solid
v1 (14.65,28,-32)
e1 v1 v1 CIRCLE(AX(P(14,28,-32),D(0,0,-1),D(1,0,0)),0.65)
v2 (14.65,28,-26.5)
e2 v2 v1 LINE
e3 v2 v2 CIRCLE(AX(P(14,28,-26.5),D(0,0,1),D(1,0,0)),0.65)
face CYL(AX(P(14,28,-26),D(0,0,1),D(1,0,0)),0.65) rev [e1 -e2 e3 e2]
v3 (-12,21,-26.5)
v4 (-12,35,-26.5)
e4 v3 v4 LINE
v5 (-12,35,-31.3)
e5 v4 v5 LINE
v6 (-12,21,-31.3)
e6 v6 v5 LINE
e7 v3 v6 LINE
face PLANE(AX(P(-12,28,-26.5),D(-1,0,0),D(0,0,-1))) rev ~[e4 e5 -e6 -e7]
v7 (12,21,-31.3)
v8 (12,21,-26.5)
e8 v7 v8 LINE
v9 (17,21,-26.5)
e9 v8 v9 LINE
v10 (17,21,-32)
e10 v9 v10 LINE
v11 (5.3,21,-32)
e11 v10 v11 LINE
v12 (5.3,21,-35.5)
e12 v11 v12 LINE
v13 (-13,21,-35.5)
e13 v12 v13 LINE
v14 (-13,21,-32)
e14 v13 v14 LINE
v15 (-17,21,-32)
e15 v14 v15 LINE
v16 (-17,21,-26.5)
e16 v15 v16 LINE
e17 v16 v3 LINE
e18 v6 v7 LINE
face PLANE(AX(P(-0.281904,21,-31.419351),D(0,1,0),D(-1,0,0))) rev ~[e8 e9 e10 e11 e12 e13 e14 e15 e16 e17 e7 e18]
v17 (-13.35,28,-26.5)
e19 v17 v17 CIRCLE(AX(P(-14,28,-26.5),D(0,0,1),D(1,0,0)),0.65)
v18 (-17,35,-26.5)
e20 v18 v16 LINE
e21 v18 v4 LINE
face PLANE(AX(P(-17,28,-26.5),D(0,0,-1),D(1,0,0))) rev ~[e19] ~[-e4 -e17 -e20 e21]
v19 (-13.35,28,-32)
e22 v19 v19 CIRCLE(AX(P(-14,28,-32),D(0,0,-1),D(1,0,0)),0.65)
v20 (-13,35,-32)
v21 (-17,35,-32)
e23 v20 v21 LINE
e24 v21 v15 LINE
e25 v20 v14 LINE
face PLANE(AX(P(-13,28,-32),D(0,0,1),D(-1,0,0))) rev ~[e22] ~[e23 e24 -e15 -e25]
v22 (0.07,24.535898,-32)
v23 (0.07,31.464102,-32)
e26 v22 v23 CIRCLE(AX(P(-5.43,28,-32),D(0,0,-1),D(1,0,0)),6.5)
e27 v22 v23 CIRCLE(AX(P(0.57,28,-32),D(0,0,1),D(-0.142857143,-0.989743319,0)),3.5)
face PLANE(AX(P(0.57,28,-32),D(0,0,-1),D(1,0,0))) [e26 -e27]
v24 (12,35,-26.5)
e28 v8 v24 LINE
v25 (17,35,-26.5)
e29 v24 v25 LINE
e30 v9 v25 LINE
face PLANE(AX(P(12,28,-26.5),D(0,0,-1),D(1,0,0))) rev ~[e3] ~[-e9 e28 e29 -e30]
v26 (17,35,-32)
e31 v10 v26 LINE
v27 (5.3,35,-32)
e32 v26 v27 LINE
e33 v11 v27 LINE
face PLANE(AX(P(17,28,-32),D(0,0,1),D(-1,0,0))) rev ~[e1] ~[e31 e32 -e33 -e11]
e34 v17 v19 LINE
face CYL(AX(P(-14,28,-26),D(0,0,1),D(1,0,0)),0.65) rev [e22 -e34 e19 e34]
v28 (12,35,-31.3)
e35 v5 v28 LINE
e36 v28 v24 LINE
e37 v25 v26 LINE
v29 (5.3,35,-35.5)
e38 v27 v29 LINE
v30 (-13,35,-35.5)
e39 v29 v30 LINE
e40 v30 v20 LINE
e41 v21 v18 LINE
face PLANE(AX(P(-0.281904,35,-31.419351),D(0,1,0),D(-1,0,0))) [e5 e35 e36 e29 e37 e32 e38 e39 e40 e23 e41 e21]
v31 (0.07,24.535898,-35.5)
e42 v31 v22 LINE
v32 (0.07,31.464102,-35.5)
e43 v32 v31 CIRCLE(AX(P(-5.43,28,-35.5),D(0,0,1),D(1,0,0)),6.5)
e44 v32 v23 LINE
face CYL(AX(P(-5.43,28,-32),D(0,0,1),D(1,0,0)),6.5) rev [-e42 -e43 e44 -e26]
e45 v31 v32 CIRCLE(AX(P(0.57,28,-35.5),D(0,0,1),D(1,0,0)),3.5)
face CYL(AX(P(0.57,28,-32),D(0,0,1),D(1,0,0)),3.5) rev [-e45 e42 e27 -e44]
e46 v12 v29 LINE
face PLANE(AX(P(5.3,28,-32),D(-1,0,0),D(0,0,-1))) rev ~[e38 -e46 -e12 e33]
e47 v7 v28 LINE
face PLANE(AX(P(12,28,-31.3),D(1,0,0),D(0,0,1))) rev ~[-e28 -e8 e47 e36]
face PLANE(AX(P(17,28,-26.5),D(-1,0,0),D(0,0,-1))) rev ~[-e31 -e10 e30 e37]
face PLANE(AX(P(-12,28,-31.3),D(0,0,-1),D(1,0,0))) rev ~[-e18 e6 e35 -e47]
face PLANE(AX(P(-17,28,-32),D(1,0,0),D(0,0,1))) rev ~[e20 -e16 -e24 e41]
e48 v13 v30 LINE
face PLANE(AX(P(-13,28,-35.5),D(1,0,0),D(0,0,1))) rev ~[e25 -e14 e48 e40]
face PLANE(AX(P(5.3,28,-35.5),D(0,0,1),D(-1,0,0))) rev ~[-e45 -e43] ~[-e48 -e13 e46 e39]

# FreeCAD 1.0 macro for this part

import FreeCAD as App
import Part
import Sketcher

V = App.Vector

doc = App.newDocument("Part")
body = doc.addObject("PartDesign::Body", "Body")

sketch1 = doc.addObject("Sketcher::SketchObject", "Sketch")
body.addObject(sketch1)
sketch1.AttachmentSupport = (doc.XY_Plane, [""])
sketch1.MapMode = "FlatFace"
sketch1.addGeometry(Part.Circle(V(0, 0, 0), V(0, 0, 1), 3.5), False)
sketch1.addConstraint(Sketcher.Constraint("Coincident", 0, 3, -1, 1))
sketch1.addConstraint(Sketcher.Constraint("Diameter", 0, 7.0))
pad1 = doc.addObject("PartDesign::Pad", "Pad")
body.addObject(pad1)
pad1.Profile = sketch1
pad1.Length = 4
body2 = doc.addObject("PartDesign::Body", "Body001")
doc.recompute()

body.Placement = App.Placement(V(0, 0, 0), App.Rotation(V(1, 0, 0), 90))
boolean = doc.addObject("PartDesign::Boolean", "Boolean")
body2.addObject(boolean)
boolean.Type = "Fuse"
boolean.addObjects([body])
body3 = doc.addObject("PartDesign::Body", "Body002")
doc.recompute()

body2.Placement = App.Placement(V(0.57, -7, 0), App.Rotation(V(0, 0, 1), 0))
boolean2 = doc.addObject("PartDesign::Boolean", "Boolean001")
body3.addObject(boolean2)
boolean2.Type = "Fuse"
boolean2.addObjects([body2])
body4 = doc.addObject("PartDesign::Body", "Body003")

sketch2 = doc.addObject("Sketcher::SketchObject", "Sketch001")
body4.addObject(sketch2)
sketch2.AttachmentSupport = (doc.getObject("XY_Plane003"), [""])
sketch2.MapMode = "FlatFace"
sketch2.addGeometry(Part.Circle(V(0, 0, 0), V(0, 0, 1), 0.7), False)
sketch2.addConstraint(Sketcher.Constraint("Coincident", 0, 3, -1, 1))
sketch2.addConstraint(Sketcher.Constraint("Diameter", 0, 1.3))
pad2 = doc.addObject("PartDesign::Pad", "Pad001")
body4.addObject(pad2)
pad2.Profile = sketch2
pad2.Length = 6
body5 = doc.addObject("PartDesign::Body", "Body004")
doc.recompute()

body4.Placement = App.Placement(V(0, 0, 0), App.Rotation(V(1, 0, 0), 90))
boolean3 = doc.addObject("PartDesign::Boolean", "Boolean002")
body5.addObject(boolean3)
boolean3.Type = "Fuse"
boolean3.addObjects([body4])
body6 = doc.addObject("PartDesign::Body", "Body005")
doc.recompute()

body5.Placement = App.Placement(V(14, -1, 0), App.Rotation(V(0, 0, 1), 0))
boolean4 = doc.addObject("PartDesign::Boolean", "Boolean003")
body6.addObject(boolean4)
boolean4.Type = "Fuse"
boolean4.addObjects([body5])
body7 = doc.addObject("PartDesign::Body", "Body006")

sketch3 = doc.addObject("Sketcher::SketchObject", "Sketch002")
body7.addObject(sketch3)
sketch3.AttachmentSupport = (doc.getObject("XY_Plane006"), [""])
sketch3.MapMode = "FlatFace"
sketch3.addGeometry(Part.Circle(V(0, 0, 0), V(0, 0, 1), 6), False)
sketch3.addConstraint(Sketcher.Constraint("Coincident", 0, 3, -1, 1))
sketch3.addConstraint(Sketcher.Constraint("Diameter", 0, 13.0))
pad3 = doc.addObject("PartDesign::Pad", "Pad002")
body7.addObject(pad3)
pad3.Profile = sketch3
pad3.Length = 4
body8 = doc.addObject("PartDesign::Body", "Body007")
doc.recompute()

body7.Placement = App.Placement(V(0, 0, 0), App.Rotation(V(1, 0, 0), 90))
boolean5 = doc.addObject("PartDesign::Boolean", "Boolean004")
body8.addObject(boolean5)
boolean5.Type = "Fuse"
boolean5.addObjects([body7])
body9 = doc.addObject("PartDesign::Body", "Body008")
doc.recompute()

body8.Placement = App.Placement(V(-5.43, -7, 0), App.Rotation(V(0, 0, 1), 0))
boolean6 = doc.addObject("PartDesign::Boolean", "Boolean005")
body9.addObject(boolean6)
boolean6.Type = "Fuse"
boolean6.addObjects([body8])
body10 = doc.addObject("PartDesign::Body", "Body009")

sketch4 = doc.addObject("Sketcher::SketchObject", "Sketch003")
body10.addObject(sketch4)
sketch4.AttachmentSupport = (doc.getObject("XY_Plane009"), [""])
sketch4.MapMode = "FlatFace"
sketch4.addGeometry(Part.Circle(V(0, 0, 0), V(0, 0, 1), 0.7), False)
sketch4.addConstraint(Sketcher.Constraint("Coincident", 0, 3, -1, 1))
sketch4.addConstraint(Sketcher.Constraint("Diameter", 0, 1.3))
pad4 = doc.addObject("PartDesign::Pad", "Pad003")
body10.addObject(pad4)
pad4.Profile = sketch4
pad4.Length = 6
body11 = doc.addObject("PartDesign::Body", "Body010")
doc.recompute()

body10.Placement = App.Placement(V(0, 0, 0), App.Rotation(V(1, 0, 0), 90))
boolean7 = doc.addObject("PartDesign::Boolean", "Boolean006")
body11.addObject(boolean7)
boolean7.Type = "Fuse"
boolean7.addObjects([body10])
body12 = doc.addObject("PartDesign::Body", "Body011")
body12.AllowCompound = True
doc.recompute()

body11.Placement = App.Placement(V(-14, -1, 0), App.Rotation(V(0, 0, 1), 0))
boolean8 = doc.addObject("PartDesign::Boolean", "Boolean007")
body12.addObject(boolean8)
boolean8.Type = "Fuse"
boolean8.addObjects([body11])
doc.recompute()

boolean9 = doc.addObject("PartDesign::Boolean", "Boolean008")
body12.addObject(boolean9)
boolean9.Type = "Fuse"
boolean9.addObjects([body3])
doc.recompute()

boolean10 = doc.addObject("PartDesign::Boolean", "Boolean009")
body12.addObject(boolean10)
boolean10.Type = "Fuse"
boolean10.addObjects([body6])
doc.recompute()

boolean11 = doc.addObject("PartDesign::Boolean", "Boolean010")
body12.addObject(boolean11)
boolean11.Type = "Fuse"
boolean11.addObjects([body9])
body13 = doc.addObject("PartDesign::Body", "Body012")

sketch5 = doc.addObject("Sketcher::SketchObject", "Sketch004")
body13.addObject(sketch5)
sketch5.AttachmentSupport = (doc.getObject("XY_Plane012"), [""])
sketch5.MapMode = "FlatFace"
sketch5.addGeometry(Part.LineSegment(V(-12, -1.5, 0), V(-17, -1.5, 0)), False)
sketch5.addGeometry(Part.LineSegment(V(-17, -1.5, 0), V(-17, -7, 0)), False)
sketch5.addGeometry(Part.LineSegment(V(-17, -7, 0), V(-13, -7, 0)), False)
sketch5.addGeometry(Part.LineSegment(V(-13, -7, 0), V(-13, -10.5, 0)), False)
sketch5.addGeometry(Part.LineSegment(V(-13, -10.5, 0), V(5.3, -10.5, 0)), False)
sketch5.addGeometry(Part.LineSegment(V(5.3, -10.5, 0), V(5.3, -7, 0)), False)
sketch5.addGeometry(Part.LineSegment(V(5.3, -7, 0), V(17, -7, 0)), False)
sketch5.addGeometry(Part.LineSegment(V(17, -7, 0), V(17, -1.5, 0)), False)
sketch5.addGeometry(Part.LineSegment(V(17, -1.5, 0), V(12, -1.5, 0)), False)
sketch5.addGeometry(Part.LineSegment(V(12, -1.5, 0), V(12, -6.3, 0)), False)
sketch5.addGeometry(Part.LineSegment(V(12, -6.3, 0), V(-12, -6.3, 0)), False)
sketch5.addGeometry(Part.LineSegment(V(-12, -6.3, 0), V(-12, -1.5, 0)), False)
sketch5.addConstraint(Sketcher.Constraint("Coincident", 0, 2, 1, 1))
sketch5.addConstraint(Sketcher.Constraint("Coincident", 1, 2, 2, 1))
sketch5.addConstraint(Sketcher.Constraint("Coincident", 2, 2, 3, 1))
sketch5.addConstraint(Sketcher.Constraint("Coincident", 3, 2, 4, 1))
sketch5.addConstraint(Sketcher.Constraint("Coincident", 4, 2, 5, 1))
sketch5.addConstraint(Sketcher.Constraint("Coincident", 5, 2, 6, 1))
sketch5.addConstraint(Sketcher.Constraint("Coincident", 6, 2, 7, 1))
sketch5.addConstraint(Sketcher.Constraint("Coincident", 7, 2, 8, 1))
sketch5.addConstraint(Sketcher.Constraint("Coincident", 8, 2, 9, 1))
sketch5.addConstraint(Sketcher.Constraint("Coincident", 9, 2, 10, 1))
sketch5.addConstraint(Sketcher.Constraint("Coincident", 10, 2, 11, 1))
sketch5.addConstraint(Sketcher.Constraint("Coincident", 11, 2, 0, 1))
sketch5.addConstraint(Sketcher.Constraint("Horizontal", 0))
sketch5.addConstraint(Sketcher.Constraint("Vertical", 1))
sketch5.addConstraint(Sketcher.Constraint("Horizontal", 2))
sketch5.addConstraint(Sketcher.Constraint("Vertical", 3))
sketch5.addConstraint(Sketcher.Constraint("Horizontal", 4))
sketch5.addConstraint(Sketcher.Constraint("Vertical", 5))
sketch5.addConstraint(Sketcher.Constraint("Horizontal", 6))
sketch5.addConstraint(Sketcher.Constraint("Vertical", 7))
sketch5.addConstraint(Sketcher.Constraint("Horizontal", 8))
sketch5.addConstraint(Sketcher.Constraint("Vertical", 9))
sketch5.addConstraint(Sketcher.Constraint("Horizontal", 10))
sketch5.addConstraint(Sketcher.Constraint("Vertical", 11))
sketch5.addConstraint(Sketcher.Constraint("Symmetric", 1, 2, 6, 2, -2))
sketch5.addConstraint(Sketcher.Constraint("Symmetric", 8, 2, 11, 2, -2))
sketch5.addConstraint(Sketcher.Constraint("DistanceX", 0, 2, 0, 1, 5.0))
sketch5.addConstraint(Sketcher.Constraint("DistanceX", 2, 1, 2, 2, 4.0))
sketch5.addConstraint(Sketcher.Constraint("DistanceX", 10, 2, 10, 1, 24.0))
sketch5.addConstraint(Sketcher.Constraint("DistanceX", 4, 1, 4, 2, 18.3))
sketch5.addConstraint(Sketcher.Constraint("DistanceY", 1, 2, 1, 1, 5.5))
sketch5.addConstraint(Sketcher.Constraint("DistanceY", 3, 2, 3, 1, 3.5))
sketch5.addConstraint(Sketcher.Constraint("DistanceY", 9, 2, 9, 1, 4.8))
sketch5.addConstraint(Sketcher.Constraint("DistanceY", 1, 2, -1, 1, 7.0))
pad5 = doc.addObject("PartDesign::Pad", "Pad004")
body13.addObject(pad5)
pad5.Profile = sketch5
pad5.Length = 14
pad5.Midplane = True
doc.recompute()

boolean12 = doc.addObject("PartDesign::Boolean", "Boolean011")
body13.addObject(boolean12)
boolean12.Type = "Cut"
boolean12.addObjects([body12])
body14 = doc.addObject("PartDesign::Body", "Body013")
doc.recompute()

body13.Placement = App.Placement(V(0, 0, 0), App.Rotation(V(1, 0, 0), 90))
boolean13 = doc.addObject("PartDesign::Boolean", "Boolean012")
body14.addObject(boolean13)
boolean13.Type = "Fuse"
boolean13.addObjects([body13])
body15 = doc.addObject("PartDesign::Body", "Body014")
doc.recompute()

body14.Placement = App.Placement(V(0, 28, -25), App.Rotation(V(0, 0, 1), 0))
boolean14 = doc.addObject("PartDesign::Boolean", "Boolean013")
body15.addObject(boolean14)
boolean14.Type = "Fuse"
boolean14.addObjects([body14])

doc.recompute()
